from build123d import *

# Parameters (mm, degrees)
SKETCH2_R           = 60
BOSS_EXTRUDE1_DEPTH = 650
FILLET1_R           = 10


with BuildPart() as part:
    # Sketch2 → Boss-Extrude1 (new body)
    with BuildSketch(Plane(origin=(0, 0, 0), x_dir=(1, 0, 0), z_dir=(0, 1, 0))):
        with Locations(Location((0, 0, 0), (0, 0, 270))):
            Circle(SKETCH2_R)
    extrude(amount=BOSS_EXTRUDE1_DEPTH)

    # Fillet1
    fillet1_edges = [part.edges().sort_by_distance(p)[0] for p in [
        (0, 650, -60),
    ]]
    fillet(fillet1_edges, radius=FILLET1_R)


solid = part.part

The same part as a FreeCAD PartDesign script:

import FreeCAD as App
import Part
import Sketcher
Q = App.Units.Quantity


def edges_at(feature, points):
    """Names of the edges that pass closest to the given points."""
    edges = feature.Shape.Edges
    near = lambda p: min(range(len(edges)), key=lambda i: edges[i].distToShape(Part.Vertex(*p))[0])
    return sorted({f"Edge{near(p) + 1}" for p in points})

doc = App.newDocument("Part")
params = doc.addObject("Spreadsheet::Sheet", "Params")
for row, (alias, value) in enumerate([
    ("sketch1_diameter", "120 mm"),
    ("pad1_length", "650 mm"),
    ("fillet_radius", "10 mm"),
], start=1):
    params.set(f"A{row}", alias)
    params.set(f"B{row}", "=" + value)
    params.setAlias(f"B{row}", alias)

body = doc.addObject("PartDesign::Body", "Body")

# Sketch on XZ plane
sketch1 = body.newObject("Sketcher::SketchObject", "Sketch")
sketch1.AttachmentSupport = (doc.getObject("XZ_Plane"), [""])
sketch1.MapMode = "FlatFace"
sketch1.addGeometry(Part.Circle(App.Vector(0, 0, 0), App.Vector(0, 0, 1), 60), False)
sketch1.addConstraint([
    Sketcher.Constraint("Coincident", 0, 3, -1, 1),
    Sketcher.Constraint("Diameter", 0, Q("120 mm")),
])
sketch1.setExpression("Constraints[1]", "Params.sketch1_diameter")
pad1 = body.newObject("PartDesign::Pad", "Pad")
pad1.Profile = sketch1
pad1.setExpression("Length", "Params.pad1_length")
pad1.Reversed = True
doc.recompute()

fillet = body.newObject("PartDesign::Fillet", "Fillet")
fillet.Base = (pad1, edges_at(pad1, [(0, 650, -60)]))
fillet.setExpression("Radius", "Params.fillet_radius")

doc.recompute()
